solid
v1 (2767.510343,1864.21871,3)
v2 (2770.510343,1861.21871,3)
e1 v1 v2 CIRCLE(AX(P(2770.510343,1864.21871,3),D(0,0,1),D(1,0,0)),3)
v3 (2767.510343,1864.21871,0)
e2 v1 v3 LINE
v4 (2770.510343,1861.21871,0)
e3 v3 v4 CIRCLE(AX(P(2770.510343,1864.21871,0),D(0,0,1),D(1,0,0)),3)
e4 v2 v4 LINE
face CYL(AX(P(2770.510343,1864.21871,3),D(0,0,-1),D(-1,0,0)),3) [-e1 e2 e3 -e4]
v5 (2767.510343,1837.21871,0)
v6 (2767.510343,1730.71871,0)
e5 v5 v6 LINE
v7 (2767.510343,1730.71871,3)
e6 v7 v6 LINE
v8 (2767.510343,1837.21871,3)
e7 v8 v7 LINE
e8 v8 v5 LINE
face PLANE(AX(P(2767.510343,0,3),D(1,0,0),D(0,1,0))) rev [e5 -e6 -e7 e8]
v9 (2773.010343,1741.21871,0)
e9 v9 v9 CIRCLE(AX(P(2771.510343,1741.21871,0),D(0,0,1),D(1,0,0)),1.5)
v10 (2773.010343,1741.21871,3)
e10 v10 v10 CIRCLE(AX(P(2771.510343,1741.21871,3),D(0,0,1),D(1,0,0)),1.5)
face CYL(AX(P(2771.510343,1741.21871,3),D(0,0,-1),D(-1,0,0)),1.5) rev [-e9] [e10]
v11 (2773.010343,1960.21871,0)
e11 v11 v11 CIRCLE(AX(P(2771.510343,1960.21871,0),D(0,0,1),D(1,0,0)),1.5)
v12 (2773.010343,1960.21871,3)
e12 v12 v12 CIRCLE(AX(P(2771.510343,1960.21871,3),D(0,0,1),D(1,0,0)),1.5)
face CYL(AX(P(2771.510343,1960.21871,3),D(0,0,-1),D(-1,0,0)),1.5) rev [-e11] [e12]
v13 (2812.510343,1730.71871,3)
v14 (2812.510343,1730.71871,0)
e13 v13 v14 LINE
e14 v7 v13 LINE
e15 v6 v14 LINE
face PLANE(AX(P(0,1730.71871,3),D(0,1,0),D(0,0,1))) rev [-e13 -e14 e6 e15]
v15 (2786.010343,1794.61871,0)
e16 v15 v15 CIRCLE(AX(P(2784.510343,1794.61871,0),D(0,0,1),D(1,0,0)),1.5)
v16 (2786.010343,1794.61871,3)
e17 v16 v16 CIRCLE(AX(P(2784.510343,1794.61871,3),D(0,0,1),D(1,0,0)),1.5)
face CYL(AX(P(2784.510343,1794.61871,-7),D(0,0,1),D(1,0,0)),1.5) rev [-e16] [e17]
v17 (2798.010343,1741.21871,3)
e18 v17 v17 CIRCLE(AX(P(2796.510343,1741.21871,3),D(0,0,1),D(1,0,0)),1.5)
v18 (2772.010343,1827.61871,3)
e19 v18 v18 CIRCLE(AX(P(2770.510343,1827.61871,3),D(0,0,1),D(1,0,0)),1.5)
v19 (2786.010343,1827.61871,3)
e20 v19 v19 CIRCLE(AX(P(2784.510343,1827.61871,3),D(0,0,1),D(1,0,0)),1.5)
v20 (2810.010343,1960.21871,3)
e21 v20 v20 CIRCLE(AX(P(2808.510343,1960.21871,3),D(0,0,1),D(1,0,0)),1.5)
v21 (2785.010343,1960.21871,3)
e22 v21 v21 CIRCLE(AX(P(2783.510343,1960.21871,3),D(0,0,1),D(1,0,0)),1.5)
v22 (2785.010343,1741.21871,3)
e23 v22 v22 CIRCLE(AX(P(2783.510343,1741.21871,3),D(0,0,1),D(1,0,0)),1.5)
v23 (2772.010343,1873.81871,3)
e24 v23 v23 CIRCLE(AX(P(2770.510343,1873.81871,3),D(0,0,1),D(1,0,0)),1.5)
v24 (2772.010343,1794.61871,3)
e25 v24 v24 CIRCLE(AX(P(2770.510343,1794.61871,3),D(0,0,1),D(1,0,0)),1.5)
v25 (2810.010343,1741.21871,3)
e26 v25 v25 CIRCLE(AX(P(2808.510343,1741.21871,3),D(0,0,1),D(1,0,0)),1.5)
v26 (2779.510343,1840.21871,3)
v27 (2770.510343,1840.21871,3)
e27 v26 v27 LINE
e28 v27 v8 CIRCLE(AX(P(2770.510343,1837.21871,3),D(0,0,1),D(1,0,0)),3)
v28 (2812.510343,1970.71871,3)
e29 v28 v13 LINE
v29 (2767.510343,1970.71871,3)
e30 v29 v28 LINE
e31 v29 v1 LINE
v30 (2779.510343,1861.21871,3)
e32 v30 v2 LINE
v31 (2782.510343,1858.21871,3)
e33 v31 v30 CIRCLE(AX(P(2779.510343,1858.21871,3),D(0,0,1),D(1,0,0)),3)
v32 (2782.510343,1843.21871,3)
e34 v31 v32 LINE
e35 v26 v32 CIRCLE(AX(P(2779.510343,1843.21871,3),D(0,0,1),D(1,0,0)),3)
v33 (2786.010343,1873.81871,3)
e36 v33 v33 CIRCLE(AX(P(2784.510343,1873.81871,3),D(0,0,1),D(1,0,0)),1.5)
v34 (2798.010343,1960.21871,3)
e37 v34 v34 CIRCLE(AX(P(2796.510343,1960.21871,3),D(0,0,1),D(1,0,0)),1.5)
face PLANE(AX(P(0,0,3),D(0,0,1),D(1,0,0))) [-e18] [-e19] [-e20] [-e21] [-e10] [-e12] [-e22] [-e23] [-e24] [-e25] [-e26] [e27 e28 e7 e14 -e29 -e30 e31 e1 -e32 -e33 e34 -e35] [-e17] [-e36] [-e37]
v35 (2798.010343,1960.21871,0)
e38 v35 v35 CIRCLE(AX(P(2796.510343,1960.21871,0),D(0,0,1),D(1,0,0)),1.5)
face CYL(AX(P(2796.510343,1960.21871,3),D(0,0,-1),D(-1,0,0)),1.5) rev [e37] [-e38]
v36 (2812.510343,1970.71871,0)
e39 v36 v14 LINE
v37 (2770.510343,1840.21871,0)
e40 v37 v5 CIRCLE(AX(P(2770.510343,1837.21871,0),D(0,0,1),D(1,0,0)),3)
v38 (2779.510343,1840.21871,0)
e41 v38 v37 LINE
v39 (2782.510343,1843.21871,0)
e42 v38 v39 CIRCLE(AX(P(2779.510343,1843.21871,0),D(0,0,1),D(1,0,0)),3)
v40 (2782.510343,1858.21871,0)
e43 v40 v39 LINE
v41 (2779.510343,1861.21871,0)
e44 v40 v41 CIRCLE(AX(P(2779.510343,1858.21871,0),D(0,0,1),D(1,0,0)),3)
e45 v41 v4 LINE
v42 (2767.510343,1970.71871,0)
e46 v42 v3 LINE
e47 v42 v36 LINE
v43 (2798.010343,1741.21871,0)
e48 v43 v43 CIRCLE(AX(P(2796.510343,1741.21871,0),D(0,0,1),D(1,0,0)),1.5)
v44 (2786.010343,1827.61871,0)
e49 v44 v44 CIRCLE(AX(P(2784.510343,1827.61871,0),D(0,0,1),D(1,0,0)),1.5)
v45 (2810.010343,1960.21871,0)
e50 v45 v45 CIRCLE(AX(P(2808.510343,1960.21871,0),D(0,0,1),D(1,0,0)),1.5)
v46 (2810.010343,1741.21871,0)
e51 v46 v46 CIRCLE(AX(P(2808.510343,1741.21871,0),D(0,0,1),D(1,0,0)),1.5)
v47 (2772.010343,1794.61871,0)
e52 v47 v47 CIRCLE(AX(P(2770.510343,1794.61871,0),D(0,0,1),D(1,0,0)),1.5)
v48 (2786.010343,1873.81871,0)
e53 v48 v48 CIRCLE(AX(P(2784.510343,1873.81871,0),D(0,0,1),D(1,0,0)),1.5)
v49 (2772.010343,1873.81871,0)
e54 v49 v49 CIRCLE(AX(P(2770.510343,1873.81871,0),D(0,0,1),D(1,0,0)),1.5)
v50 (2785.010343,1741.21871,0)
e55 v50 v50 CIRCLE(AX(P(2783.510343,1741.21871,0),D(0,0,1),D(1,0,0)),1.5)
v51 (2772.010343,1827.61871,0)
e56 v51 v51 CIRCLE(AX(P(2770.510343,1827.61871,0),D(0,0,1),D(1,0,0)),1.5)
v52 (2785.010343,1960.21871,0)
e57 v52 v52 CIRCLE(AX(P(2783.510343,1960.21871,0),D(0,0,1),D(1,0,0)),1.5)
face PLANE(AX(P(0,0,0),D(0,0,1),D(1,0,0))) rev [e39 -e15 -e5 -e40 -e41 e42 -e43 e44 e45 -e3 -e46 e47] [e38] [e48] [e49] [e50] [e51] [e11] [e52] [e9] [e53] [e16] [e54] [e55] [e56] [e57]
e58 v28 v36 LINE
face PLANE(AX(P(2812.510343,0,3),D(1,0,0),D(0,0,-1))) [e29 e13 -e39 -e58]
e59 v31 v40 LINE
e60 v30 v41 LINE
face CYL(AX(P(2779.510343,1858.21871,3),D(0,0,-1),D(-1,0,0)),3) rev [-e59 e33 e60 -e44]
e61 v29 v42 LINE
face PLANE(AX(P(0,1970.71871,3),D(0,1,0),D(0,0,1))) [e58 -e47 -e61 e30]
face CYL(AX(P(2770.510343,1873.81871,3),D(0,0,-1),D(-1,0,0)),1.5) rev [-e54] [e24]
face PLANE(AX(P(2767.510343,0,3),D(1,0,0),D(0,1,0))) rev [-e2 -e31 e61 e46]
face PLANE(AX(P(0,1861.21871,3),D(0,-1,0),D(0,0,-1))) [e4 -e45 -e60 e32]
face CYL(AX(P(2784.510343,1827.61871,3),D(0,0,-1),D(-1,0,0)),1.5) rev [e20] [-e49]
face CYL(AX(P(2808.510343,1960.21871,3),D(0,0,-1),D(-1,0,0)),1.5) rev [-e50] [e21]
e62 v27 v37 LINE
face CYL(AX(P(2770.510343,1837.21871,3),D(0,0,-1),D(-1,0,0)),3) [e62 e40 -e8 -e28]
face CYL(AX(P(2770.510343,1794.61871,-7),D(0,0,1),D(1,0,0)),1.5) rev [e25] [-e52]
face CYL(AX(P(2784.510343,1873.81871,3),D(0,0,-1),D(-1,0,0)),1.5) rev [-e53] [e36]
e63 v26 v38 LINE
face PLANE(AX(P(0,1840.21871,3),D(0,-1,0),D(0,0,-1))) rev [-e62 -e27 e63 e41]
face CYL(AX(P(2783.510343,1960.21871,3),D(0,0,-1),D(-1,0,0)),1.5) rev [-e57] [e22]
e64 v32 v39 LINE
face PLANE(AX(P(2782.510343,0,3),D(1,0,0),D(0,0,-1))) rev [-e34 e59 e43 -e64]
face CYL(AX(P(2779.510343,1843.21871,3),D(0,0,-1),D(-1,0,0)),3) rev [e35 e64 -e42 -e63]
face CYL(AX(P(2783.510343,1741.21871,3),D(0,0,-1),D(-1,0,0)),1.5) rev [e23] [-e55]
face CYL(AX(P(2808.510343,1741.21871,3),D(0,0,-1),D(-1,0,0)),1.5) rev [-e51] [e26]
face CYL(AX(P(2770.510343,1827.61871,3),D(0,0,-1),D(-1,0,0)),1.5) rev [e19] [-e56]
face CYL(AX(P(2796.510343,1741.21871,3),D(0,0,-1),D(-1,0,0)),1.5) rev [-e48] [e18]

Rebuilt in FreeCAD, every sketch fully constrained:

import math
import FreeCAD as App
import Part
import Sketcher
from FreeCAD import Vector
Q = App.Units.Quantity

doc = App.newDocument("Part")
body = doc.addObject("PartDesign::Body", "Body")

# Sketch on XY plane
sketch1 = body.newObject("Sketcher::SketchObject", "Sketch")
sketch1.AttachmentSupport = (doc.getObject("XY_Plane"), [""])
sketch1.MapMode = "FlatFace"
sketch1.addGeometry([
    Part.ArcOfCircle(Part.Circle(Vector(2779.510343, 1858.21871, 0), Vector(0, 0, 1), 3), math.radians(0), math.radians(90)),  # 0
    Part.LineSegment(Vector(2782.510343, 1858.21871, 0), Vector(2782.510343, 1843.21871, 0)),  # 1
    Part.ArcOfCircle(Part.Circle(Vector(2779.510343, 1843.21871, 0), Vector(0, 0, 1), 3), math.radians(-90), math.radians(0)),  # 2
    Part.LineSegment(Vector(2779.510343, 1840.21871, 0), Vector(2770.510343, 1840.21871, 0)),  # 3
    Part.ArcOfCircle(Part.Circle(Vector(2770.510343, 1837.21871, 0), Vector(0, 0, 1), 3), math.radians(90), math.radians(180)),  # 4
    Part.LineSegment(Vector(2767.510343, 1837.21871, 0), Vector(2767.510343, 1730.71871, 0)),  # 5
    Part.LineSegment(Vector(2767.510343, 1730.71871, 0), Vector(2812.510343, 1730.71871, 0)),  # 6
    Part.LineSegment(Vector(2812.510343, 1730.71871, 0), Vector(2812.510343, 1970.71871, 0)),  # 7
    Part.LineSegment(Vector(2812.510343, 1970.71871, 0), Vector(2767.510343, 1970.71871, 0)),  # 8
    Part.LineSegment(Vector(2767.510343, 1970.71871, 0), Vector(2767.510343, 1864.21871, 0)),  # 9
    Part.ArcOfCircle(Part.Circle(Vector(2770.510343, 1864.21871, 0), Vector(0, 0, 1), 3), math.radians(180), math.radians(270)),  # 10
    Part.LineSegment(Vector(2770.510343, 1861.21871, 0), Vector(2779.510343, 1861.21871, 0)),  # 11
    Part.Circle(Vector(2771.510343, 1741.21871, 0), Vector(0, 0, 1), 1.5),  # 12
    Part.Circle(Vector(2783.510343, 1741.21871, 0), Vector(0, 0, 1), 1.5),  # 13
    Part.Circle(Vector(2770.510343, 1827.61871, 0), Vector(0, 0, 1), 1.5),  # 14
    Part.Circle(Vector(2784.510343, 1827.61871, 0), Vector(0, 0, 1), 1.5),  # 15
    Part.Circle(Vector(2796.510343, 1741.21871, 0), Vector(0, 0, 1), 1.5),  # 16
    Part.Circle(Vector(2808.510343, 1741.21871, 0), Vector(0, 0, 1), 1.5),  # 17
    Part.Circle(Vector(2770.510343, 1873.81871, 0), Vector(0, 0, 1), 1.5),  # 18
    Part.Circle(Vector(2784.510343, 1873.81871, 0), Vector(0, 0, 1), 1.5),  # 19
    Part.Circle(Vector(2771.510343, 1960.21871, 0), Vector(0, 0, 1), 1.5),  # 20
    Part.Circle(Vector(2783.510343, 1960.21871, 0), Vector(0, 0, 1), 1.5),  # 21
    Part.Circle(Vector(2796.510343, 1960.21871, 0), Vector(0, 0, 1), 1.5),  # 22
    Part.Circle(Vector(2808.510343, 1960.21871, 0), Vector(0, 0, 1), 1.5),  # 23
], False)
sketch1.addConstraint([
    Sketcher.Constraint("Tangent", 0, 1, 1, 1),
    Sketcher.Constraint("Tangent", 1, 2, 2, 2),
    Sketcher.Constraint("Tangent", 2, 1, 3, 1),
    Sketcher.Constraint("Tangent", 3, 2, 4, 1),
    Sketcher.Constraint("Tangent", 4, 2, 5, 1),
    Sketcher.Constraint("Coincident", 5, 2, 6, 1),
    Sketcher.Constraint("Coincident", 6, 2, 7, 1),
    Sketcher.Constraint("Coincident", 7, 2, 8, 1),
    Sketcher.Constraint("Coincident", 8, 2, 9, 1),
    Sketcher.Constraint("Tangent", 9, 2, 10, 1),
    Sketcher.Constraint("Tangent", 10, 2, 11, 1),
    Sketcher.Constraint("Tangent", 11, 2, 0, 2),
    Sketcher.Constraint("Vertical", 1),
    Sketcher.Constraint("Horizontal", 3),
    Sketcher.Constraint("Vertical", 5),
    Sketcher.Constraint("Horizontal", 6),
    Sketcher.Constraint("Vertical", 7),
    Sketcher.Constraint("Horizontal", 8),
    Sketcher.Constraint("Vertical", 9),
    Sketcher.Constraint("Horizontal", 11),
    Sketcher.Constraint("Equal", 0, 2),
    Sketcher.Constraint("Equal", 2, 4),
    Sketcher.Constraint("Equal", 4, 10),
    Sketcher.Constraint("Equal", 12, 13),
    Sketcher.Constraint("Equal", 13, 14),
    Sketcher.Constraint("Equal", 14, 15),
    Sketcher.Constraint("Equal", 15, 16),
    Sketcher.Constraint("Equal", 16, 17),
    Sketcher.Constraint("Equal", 17, 18),
    Sketcher.Constraint("Equal", 18, 19),
    Sketcher.Constraint("Equal", 19, 20),
    Sketcher.Constraint("Equal", 20, 21),
    Sketcher.Constraint("Equal", 21, 22),
    Sketcher.Constraint("Equal", 22, 23),
    Sketcher.Constraint("Horizontal", 12, 3, 13, 3),
    Sketcher.Constraint("Horizontal", 14, 3, 15, 3),
    Sketcher.Constraint("Horizontal", 13, 3, 16, 3),
    Sketcher.Constraint("Horizontal", 16, 3, 17, 3),
    Sketcher.Constraint("Horizontal", 18, 3, 19, 3),
    Sketcher.Constraint("Horizontal", 20, 3, 21, 3),
    Sketcher.Constraint("Horizontal", 21, 3, 22, 3),
    Sketcher.Constraint("Horizontal", 22, 3, 23, 3),
    Sketcher.Constraint("Vertical", 4, 3, 10, 3),
    Sketcher.Constraint("Vertical", 10, 3, 14, 3),
    Sketcher.Constraint("Vertical", 14, 3, 18, 3),
    Sketcher.Constraint("Vertical", 15, 3, 19, 3),
    Sketcher.Constraint("Vertical", 12, 3, 20, 3),
    Sketcher.Constraint("Vertical", 13, 3, 21, 3),
    Sketcher.Constraint("Vertical", 16, 3, 22, 3),
    Sketcher.Constraint("Vertical", 17, 3, 23, 3),
    Sketcher.Constraint("Equal", 5, 9),
    Sketcher.Constraint("Diameter", 12, Q("3 mm")),
    Sketcher.Constraint("Radius", 0, Q("3 mm")),
    Sketcher.Constraint("DistanceX", 3, 2, 3, 1, Q("9 mm")),
    Sketcher.Constraint("DistanceX", 6, 1, 6, 2, Q("45 mm")),
    Sketcher.Constraint("DistanceY", 1, 2, 1, 1, Q("15 mm")),
    Sketcher.Constraint("DistanceY", 7, 1, 7, 2, Q("240 mm")),
    Sketcher.Constraint("DistanceX", 4, 3, 12, 3, Q("1 mm")),
    Sketcher.Constraint("DistanceY", 12, 3, 4, 3, Q("96 mm")),
    Sketcher.Constraint("DistanceX", 12, 3, 13, 3, Q("12 mm")),
    Sketcher.Constraint("DistanceX", 14, 3, 15, 3, Q("14 mm")),
    Sketcher.Constraint("DistanceX", 13, 3, 16, 3, Q("13 mm")),
    Sketcher.Constraint("DistanceX", 16, 3, 17, 3, Q("12 mm")),
    Sketcher.Constraint("DistanceY", 10, 3, 20, 3, Q("96 mm")),
    Sketcher.Constraint("DistanceY", 14, 3, 4, 3, Q("9.6 mm")),
    Sketcher.Constraint("DistanceY", 10, 3, 18, 3, Q("9.6 mm")),
    Sketcher.Constraint("DistanceY", -1, 1, 0, 3, Q("1858.21871 mm")),
    Sketcher.Constraint("DistanceX", -1, 1, 0, 3, Q("2779.510343 mm")),
])
pad1 = body.newObject("PartDesign::Pad", "Pad")
pad1.Profile = sketch1
pad1.Length = 3

# Sketch on XY plane
sketch2 = body.newObject("Sketcher::SketchObject", "Sketch001")
sketch2.AttachmentSupport = (doc.getObject("XY_Plane"), [""])
sketch2.MapMode = "FlatFace"
sketch2.AttachmentOffset = App.Placement(Vector(0, 0, 3), App.Rotation())
sketch2.addGeometry([
    Part.Circle(Vector(2770.510343, 1794.61871, 0), Vector(0, 0, 1), 1.5),
    Part.Circle(Vector(2784.510343, 1794.61871, 0), Vector(0, 0, 1), 1.5),
], False)
sketch2.addConstraint([
    Sketcher.Constraint("Equal", 0, 1),
    Sketcher.Constraint("Horizontal", 0, 3, 1, 3),
    Sketcher.Constraint("Diameter", 0, Q("3 mm")),
    Sketcher.Constraint("DistanceX", 0, 3, 1, 3, Q("14 mm")),
    Sketcher.Constraint("DistanceY", -1, 1, 0, 3, Q("1794.61871 mm")),
    Sketcher.Constraint("DistanceX", -1, 1, 0, 3, Q("2770.510343 mm")),
])
pocket1 = body.newObject("PartDesign::Pocket", "Pocket")
pocket1.Profile = sketch2
pocket1.Length = 10

doc.recompute()
